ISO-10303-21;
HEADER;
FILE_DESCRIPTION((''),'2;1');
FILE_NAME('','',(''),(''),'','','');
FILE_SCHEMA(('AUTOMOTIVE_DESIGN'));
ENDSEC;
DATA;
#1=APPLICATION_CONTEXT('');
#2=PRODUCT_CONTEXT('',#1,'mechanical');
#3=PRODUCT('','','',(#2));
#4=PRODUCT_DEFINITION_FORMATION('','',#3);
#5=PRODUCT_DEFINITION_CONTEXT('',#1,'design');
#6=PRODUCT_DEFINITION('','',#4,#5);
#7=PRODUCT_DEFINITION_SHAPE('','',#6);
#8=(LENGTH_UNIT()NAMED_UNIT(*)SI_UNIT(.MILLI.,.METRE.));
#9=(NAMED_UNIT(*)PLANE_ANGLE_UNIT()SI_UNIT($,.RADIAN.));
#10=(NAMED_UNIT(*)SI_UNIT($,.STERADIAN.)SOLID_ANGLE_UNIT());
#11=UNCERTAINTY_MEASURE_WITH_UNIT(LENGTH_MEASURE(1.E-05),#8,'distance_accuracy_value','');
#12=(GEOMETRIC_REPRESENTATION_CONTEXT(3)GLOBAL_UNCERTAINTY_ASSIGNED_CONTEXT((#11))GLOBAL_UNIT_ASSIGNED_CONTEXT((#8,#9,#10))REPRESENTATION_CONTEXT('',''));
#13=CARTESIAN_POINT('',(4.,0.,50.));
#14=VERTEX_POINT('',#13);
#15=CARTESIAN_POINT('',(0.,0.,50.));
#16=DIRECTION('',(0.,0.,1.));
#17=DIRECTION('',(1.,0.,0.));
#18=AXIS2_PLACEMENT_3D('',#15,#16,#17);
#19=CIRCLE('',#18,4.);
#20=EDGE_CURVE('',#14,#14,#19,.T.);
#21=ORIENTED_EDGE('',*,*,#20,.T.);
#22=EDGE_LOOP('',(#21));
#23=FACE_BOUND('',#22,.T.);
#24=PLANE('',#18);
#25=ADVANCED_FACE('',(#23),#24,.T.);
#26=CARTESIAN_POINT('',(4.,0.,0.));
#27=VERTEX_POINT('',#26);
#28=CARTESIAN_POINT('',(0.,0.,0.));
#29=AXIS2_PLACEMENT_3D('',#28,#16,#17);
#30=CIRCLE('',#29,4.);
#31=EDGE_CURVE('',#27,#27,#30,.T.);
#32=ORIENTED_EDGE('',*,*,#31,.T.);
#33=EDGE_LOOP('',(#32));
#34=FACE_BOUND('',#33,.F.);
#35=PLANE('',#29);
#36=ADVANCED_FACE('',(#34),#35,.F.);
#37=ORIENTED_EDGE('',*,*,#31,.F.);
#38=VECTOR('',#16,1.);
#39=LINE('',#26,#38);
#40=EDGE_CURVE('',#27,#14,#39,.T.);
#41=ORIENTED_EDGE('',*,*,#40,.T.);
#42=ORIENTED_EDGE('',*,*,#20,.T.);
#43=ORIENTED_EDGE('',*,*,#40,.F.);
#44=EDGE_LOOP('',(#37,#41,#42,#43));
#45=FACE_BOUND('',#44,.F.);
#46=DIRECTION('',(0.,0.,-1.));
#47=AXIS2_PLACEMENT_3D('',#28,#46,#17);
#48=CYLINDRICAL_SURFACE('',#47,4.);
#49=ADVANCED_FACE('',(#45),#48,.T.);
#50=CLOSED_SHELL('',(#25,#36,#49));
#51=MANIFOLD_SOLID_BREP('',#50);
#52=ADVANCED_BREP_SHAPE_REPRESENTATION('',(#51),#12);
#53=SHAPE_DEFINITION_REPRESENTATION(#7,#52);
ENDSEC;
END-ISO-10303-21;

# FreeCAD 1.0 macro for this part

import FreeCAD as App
import Part
import Sketcher
from FreeCAD import Vector
Q = App.Units.Quantity

doc = App.newDocument("Part")
body = doc.addObject("PartDesign::Body", "Body")

# Sketch on XY plane
sketch1 = body.newObject("Sketcher::SketchObject", "Sketch")
sketch1.AttachmentSupport = (doc.getObject("XY_Plane"), [""])
sketch1.MapMode = "FlatFace"
sketch1.addGeometry(Part.Circle(Vector(0, 0, 0), Vector(0, 0, 1), 4), False)
sketch1.addConstraint([
    Sketcher.Constraint("Coincident", 0, 3, -1, 1),
    Sketcher.Constraint("Diameter", 0, Q("8 mm")),
])
pad1 = body.newObject("PartDesign::Pad", "Pad")
pad1.Profile = sketch1
pad1.Length = 50

doc.recompute()
